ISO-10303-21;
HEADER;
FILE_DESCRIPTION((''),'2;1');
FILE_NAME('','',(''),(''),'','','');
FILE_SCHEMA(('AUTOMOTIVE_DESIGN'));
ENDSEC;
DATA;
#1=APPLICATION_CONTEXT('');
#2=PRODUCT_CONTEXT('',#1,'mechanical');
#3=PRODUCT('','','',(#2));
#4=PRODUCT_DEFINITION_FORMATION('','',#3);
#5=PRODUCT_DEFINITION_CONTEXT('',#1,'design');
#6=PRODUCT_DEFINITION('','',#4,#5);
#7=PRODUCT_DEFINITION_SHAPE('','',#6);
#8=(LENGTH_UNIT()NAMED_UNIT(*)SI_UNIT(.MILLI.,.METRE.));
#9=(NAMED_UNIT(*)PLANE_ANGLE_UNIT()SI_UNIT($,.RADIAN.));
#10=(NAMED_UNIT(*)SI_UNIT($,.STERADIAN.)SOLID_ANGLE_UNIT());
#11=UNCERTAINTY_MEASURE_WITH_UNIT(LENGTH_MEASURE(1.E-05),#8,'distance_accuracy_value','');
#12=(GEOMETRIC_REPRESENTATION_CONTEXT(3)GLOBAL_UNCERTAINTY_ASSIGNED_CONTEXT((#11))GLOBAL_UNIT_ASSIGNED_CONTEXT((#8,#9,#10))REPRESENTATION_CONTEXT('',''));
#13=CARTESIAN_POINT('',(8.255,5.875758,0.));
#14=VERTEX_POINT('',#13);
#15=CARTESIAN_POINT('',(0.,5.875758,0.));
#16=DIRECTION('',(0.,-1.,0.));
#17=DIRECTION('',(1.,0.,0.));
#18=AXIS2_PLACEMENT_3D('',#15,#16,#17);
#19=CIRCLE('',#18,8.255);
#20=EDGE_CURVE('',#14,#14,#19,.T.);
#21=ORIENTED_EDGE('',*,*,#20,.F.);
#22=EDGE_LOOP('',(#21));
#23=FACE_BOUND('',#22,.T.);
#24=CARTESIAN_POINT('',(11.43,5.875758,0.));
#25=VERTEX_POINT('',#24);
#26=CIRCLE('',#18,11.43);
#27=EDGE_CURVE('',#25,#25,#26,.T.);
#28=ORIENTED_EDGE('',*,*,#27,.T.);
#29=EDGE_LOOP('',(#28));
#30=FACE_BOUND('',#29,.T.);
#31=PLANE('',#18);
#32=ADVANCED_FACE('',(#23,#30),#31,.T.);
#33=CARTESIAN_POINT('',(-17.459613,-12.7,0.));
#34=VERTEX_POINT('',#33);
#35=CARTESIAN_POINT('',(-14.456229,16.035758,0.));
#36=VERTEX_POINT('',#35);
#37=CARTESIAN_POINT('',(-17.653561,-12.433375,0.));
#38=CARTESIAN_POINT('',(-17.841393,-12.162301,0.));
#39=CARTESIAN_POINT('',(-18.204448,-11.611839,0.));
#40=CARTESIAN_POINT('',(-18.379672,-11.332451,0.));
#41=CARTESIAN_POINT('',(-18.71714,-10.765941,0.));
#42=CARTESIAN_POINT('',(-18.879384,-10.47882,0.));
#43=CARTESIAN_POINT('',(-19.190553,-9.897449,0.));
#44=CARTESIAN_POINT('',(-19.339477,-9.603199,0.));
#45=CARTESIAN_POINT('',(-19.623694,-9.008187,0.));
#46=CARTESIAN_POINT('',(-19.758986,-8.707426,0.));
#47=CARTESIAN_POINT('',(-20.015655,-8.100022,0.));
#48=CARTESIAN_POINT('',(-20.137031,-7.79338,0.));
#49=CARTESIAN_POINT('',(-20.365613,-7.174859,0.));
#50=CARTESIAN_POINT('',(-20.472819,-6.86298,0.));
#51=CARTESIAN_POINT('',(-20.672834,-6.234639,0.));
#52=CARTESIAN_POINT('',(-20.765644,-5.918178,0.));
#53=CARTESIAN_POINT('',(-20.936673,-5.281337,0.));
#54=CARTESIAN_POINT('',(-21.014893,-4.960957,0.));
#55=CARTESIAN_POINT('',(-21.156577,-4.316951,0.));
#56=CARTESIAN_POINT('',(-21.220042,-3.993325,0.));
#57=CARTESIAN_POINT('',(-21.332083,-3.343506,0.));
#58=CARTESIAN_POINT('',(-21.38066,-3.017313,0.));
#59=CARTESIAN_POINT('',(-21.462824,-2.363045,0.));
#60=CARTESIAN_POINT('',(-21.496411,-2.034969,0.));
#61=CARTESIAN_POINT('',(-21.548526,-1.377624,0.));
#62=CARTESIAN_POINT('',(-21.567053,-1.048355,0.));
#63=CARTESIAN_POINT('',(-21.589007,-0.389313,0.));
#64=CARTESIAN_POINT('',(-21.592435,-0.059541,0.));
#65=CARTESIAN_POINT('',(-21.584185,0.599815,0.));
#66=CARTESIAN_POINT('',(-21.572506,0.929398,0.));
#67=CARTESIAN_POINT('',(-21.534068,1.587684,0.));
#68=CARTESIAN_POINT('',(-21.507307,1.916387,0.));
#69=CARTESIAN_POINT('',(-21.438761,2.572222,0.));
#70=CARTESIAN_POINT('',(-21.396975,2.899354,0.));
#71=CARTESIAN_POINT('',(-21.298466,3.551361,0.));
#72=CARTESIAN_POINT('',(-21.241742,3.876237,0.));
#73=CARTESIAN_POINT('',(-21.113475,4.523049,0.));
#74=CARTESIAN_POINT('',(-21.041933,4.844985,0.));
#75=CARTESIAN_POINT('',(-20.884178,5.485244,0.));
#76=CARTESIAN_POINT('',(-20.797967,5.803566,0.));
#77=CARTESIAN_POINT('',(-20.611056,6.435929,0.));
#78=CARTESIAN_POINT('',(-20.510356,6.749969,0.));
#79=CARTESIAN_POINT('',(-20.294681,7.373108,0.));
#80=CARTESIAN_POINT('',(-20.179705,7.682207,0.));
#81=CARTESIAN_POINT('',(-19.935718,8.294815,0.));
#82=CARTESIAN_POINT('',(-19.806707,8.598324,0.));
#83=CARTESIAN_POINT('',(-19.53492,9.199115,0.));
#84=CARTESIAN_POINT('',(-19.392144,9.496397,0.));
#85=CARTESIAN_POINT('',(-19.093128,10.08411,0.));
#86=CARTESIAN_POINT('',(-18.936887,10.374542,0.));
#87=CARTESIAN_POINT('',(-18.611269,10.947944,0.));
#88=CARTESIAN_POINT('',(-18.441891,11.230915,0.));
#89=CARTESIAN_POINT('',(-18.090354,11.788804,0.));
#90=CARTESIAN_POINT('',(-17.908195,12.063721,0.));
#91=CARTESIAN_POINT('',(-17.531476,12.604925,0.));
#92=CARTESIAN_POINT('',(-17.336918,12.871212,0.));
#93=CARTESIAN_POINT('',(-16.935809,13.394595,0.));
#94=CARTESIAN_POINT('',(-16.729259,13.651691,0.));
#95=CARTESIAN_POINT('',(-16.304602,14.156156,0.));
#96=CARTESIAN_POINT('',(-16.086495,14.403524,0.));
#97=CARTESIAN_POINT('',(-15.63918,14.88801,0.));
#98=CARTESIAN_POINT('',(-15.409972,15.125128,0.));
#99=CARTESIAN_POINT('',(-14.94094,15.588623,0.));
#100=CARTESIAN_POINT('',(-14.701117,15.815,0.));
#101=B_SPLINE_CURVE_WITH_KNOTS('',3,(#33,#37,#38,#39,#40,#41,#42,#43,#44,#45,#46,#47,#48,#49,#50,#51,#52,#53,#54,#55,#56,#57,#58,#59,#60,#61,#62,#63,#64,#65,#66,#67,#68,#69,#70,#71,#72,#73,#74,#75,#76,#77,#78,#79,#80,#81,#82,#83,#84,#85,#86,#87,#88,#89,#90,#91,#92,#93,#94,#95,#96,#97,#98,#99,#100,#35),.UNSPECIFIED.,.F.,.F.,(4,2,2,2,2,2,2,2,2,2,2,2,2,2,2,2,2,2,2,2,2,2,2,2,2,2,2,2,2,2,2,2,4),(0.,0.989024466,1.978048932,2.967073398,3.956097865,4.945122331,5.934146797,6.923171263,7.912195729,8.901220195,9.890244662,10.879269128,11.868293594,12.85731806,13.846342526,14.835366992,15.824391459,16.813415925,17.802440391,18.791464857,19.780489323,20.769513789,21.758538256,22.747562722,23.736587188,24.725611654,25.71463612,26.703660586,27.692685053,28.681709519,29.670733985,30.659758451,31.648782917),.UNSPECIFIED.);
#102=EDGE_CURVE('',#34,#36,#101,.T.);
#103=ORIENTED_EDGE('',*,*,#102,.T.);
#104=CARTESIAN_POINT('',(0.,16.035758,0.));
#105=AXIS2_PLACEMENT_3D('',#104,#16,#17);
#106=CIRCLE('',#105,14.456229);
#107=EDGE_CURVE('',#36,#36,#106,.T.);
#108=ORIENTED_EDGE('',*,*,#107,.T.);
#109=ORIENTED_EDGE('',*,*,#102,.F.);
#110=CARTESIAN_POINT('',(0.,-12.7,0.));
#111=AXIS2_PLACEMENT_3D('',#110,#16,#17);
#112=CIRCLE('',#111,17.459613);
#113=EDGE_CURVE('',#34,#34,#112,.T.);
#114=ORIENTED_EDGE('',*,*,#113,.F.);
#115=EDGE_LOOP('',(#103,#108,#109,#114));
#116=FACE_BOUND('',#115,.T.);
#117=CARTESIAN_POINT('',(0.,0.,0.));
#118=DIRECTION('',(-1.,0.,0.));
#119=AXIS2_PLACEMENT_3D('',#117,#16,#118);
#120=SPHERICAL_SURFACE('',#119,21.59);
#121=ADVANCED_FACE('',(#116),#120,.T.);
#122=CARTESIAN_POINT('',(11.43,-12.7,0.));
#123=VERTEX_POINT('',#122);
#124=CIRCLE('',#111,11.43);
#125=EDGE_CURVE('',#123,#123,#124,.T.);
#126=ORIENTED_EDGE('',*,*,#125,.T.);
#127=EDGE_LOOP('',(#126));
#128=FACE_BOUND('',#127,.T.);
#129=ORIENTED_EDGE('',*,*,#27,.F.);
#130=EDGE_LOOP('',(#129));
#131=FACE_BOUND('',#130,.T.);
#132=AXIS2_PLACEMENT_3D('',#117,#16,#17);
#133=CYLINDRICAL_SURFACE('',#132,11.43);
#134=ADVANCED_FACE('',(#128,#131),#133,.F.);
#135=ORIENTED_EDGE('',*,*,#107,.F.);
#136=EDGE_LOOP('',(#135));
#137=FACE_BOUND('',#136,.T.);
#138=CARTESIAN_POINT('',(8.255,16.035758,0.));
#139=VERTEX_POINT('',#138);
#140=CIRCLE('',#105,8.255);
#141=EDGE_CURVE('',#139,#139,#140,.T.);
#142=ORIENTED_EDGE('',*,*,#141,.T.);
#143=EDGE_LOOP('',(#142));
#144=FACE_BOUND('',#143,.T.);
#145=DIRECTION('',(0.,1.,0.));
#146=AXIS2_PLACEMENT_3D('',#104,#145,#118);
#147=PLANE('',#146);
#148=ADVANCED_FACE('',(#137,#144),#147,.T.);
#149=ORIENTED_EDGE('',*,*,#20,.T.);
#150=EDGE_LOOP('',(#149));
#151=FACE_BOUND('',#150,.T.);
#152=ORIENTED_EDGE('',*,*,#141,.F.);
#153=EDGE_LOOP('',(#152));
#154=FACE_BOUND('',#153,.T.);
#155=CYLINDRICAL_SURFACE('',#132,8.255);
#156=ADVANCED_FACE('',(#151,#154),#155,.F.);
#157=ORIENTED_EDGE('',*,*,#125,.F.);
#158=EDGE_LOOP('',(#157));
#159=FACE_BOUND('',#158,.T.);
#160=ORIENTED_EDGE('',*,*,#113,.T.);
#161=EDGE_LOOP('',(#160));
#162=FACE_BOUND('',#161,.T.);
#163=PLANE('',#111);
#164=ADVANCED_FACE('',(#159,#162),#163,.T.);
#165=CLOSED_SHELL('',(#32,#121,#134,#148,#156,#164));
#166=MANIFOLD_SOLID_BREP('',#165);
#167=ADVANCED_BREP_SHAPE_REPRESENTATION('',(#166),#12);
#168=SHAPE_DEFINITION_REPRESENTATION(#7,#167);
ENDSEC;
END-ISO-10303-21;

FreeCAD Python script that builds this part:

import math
import FreeCAD as App
import Part
import Sketcher

V = App.Vector
Q = App.Units.Quantity

doc = App.newDocument("Part")
body = doc.addObject("PartDesign::Body", "Body")

# Sketch on XY plane
sketch1 = doc.addObject("Sketcher::SketchObject", "Sketch")
body.addObject(sketch1)
sketch1.AttachmentSupport = (doc.XY_Plane, [""])
sketch1.MapMode = "FlatFace"
sketch1.addGeometry([
    Part.LineSegment(V(-8.3, 16, 0), V(-14.5, 16, 0)),  # 0
    Part.ArcOfCircle(Part.Circle(V(0, 0, 0), V(0, 0, 1), 21.6), math.radians(132), math.radians(216)),  # 1
    Part.LineSegment(V(-17.5, -12.7, 0), V(-11.4, -12.7, 0)),  # 2
    Part.LineSegment(V(-11.4, -12.7, 0), V(-11.4, 8.4, 0)),  # 3
    Part.LineSegment(V(-11.4, 8.4, 0), V(-8.3, 8.4, 0)),  # 4
    Part.LineSegment(V(-8.3, 8.4, 0), V(-8.3, 16, 0)),  # 5
], False)
sketch1.addConstraint([
    Sketcher.Constraint("Coincident", 0, 2, 1, 1),
    Sketcher.Constraint("Coincident", 1, 2, 2, 1),
    Sketcher.Constraint("Coincident", 2, 2, 3, 1),
    Sketcher.Constraint("Coincident", 3, 2, 4, 1),
    Sketcher.Constraint("Coincident", 4, 2, 5, 1),
    Sketcher.Constraint("Coincident", 5, 2, 0, 1),
    Sketcher.Constraint("Horizontal", 0),
    Sketcher.Constraint("Horizontal", 2),
    Sketcher.Constraint("Vertical", 3),
    Sketcher.Constraint("Horizontal", 4),
    Sketcher.Constraint("Vertical", 5),
    Sketcher.Constraint("Coincident", 1, 3, -1, 1),
    Sketcher.Constraint("Radius", 1, Q("0.85 in")),
    Sketcher.Constraint("DistanceY", 5, 1, 5, 2, Q("0.3 in")),
    Sketcher.Constraint("DistanceY", 1, 2, -1, 1, Q("0.5 in")),
    Sketcher.Constraint("DistanceX", 4, 1, 4, 2, Q("0.125 in")),
    Sketcher.Constraint("DistanceX", 2, 2, -1, 1, Q("0.45 in")),
    Sketcher.Constraint("DistanceX", 0, 2, 0, 1, 6.201229),
])
revolution = doc.addObject("PartDesign::Revolution", "Revolution")
body.addObject(revolution)
revolution.Profile = sketch1
revolution.ReferenceAxis = (sketch1, ["V_Axis"])
revolution.Angle = 360

# Sketch on XZ plane
sketch2 = doc.addObject("Sketcher::SketchObject", "Sketch001")
body.addObject(sketch2)
sketch2.AttachmentSupport = (doc.XZ_Plane, [""])
sketch2.MapMode = "FlatFace"
sketch2.AttachmentOffset = App.Placement(V(0, 0, -8.415758), App.Rotation())
sketch2.addGeometry([
    Part.Circle(V(0, 0, 0), V(0, 0, 1), 11),
    Part.Circle(V(0, 0, 0), V(0, 0, 1), 8),
], False)
sketch2.addConstraint([
    Sketcher.Constraint("Coincident", 0, 3, -1, 1),
    Sketcher.Constraint("Coincident", 1, 3, -1, 1),
    Sketcher.Constraint("Diameter", 0, Q("0.9 in")),
    Sketcher.Constraint("Diameter", 1, Q("0.65 in")),
])
pad1 = doc.addObject("PartDesign::Pad", "Pad")
body.addObject(pad1)
pad1.Profile = sketch2
pad1.Length = Q("0.1 in")

doc.recompute()
